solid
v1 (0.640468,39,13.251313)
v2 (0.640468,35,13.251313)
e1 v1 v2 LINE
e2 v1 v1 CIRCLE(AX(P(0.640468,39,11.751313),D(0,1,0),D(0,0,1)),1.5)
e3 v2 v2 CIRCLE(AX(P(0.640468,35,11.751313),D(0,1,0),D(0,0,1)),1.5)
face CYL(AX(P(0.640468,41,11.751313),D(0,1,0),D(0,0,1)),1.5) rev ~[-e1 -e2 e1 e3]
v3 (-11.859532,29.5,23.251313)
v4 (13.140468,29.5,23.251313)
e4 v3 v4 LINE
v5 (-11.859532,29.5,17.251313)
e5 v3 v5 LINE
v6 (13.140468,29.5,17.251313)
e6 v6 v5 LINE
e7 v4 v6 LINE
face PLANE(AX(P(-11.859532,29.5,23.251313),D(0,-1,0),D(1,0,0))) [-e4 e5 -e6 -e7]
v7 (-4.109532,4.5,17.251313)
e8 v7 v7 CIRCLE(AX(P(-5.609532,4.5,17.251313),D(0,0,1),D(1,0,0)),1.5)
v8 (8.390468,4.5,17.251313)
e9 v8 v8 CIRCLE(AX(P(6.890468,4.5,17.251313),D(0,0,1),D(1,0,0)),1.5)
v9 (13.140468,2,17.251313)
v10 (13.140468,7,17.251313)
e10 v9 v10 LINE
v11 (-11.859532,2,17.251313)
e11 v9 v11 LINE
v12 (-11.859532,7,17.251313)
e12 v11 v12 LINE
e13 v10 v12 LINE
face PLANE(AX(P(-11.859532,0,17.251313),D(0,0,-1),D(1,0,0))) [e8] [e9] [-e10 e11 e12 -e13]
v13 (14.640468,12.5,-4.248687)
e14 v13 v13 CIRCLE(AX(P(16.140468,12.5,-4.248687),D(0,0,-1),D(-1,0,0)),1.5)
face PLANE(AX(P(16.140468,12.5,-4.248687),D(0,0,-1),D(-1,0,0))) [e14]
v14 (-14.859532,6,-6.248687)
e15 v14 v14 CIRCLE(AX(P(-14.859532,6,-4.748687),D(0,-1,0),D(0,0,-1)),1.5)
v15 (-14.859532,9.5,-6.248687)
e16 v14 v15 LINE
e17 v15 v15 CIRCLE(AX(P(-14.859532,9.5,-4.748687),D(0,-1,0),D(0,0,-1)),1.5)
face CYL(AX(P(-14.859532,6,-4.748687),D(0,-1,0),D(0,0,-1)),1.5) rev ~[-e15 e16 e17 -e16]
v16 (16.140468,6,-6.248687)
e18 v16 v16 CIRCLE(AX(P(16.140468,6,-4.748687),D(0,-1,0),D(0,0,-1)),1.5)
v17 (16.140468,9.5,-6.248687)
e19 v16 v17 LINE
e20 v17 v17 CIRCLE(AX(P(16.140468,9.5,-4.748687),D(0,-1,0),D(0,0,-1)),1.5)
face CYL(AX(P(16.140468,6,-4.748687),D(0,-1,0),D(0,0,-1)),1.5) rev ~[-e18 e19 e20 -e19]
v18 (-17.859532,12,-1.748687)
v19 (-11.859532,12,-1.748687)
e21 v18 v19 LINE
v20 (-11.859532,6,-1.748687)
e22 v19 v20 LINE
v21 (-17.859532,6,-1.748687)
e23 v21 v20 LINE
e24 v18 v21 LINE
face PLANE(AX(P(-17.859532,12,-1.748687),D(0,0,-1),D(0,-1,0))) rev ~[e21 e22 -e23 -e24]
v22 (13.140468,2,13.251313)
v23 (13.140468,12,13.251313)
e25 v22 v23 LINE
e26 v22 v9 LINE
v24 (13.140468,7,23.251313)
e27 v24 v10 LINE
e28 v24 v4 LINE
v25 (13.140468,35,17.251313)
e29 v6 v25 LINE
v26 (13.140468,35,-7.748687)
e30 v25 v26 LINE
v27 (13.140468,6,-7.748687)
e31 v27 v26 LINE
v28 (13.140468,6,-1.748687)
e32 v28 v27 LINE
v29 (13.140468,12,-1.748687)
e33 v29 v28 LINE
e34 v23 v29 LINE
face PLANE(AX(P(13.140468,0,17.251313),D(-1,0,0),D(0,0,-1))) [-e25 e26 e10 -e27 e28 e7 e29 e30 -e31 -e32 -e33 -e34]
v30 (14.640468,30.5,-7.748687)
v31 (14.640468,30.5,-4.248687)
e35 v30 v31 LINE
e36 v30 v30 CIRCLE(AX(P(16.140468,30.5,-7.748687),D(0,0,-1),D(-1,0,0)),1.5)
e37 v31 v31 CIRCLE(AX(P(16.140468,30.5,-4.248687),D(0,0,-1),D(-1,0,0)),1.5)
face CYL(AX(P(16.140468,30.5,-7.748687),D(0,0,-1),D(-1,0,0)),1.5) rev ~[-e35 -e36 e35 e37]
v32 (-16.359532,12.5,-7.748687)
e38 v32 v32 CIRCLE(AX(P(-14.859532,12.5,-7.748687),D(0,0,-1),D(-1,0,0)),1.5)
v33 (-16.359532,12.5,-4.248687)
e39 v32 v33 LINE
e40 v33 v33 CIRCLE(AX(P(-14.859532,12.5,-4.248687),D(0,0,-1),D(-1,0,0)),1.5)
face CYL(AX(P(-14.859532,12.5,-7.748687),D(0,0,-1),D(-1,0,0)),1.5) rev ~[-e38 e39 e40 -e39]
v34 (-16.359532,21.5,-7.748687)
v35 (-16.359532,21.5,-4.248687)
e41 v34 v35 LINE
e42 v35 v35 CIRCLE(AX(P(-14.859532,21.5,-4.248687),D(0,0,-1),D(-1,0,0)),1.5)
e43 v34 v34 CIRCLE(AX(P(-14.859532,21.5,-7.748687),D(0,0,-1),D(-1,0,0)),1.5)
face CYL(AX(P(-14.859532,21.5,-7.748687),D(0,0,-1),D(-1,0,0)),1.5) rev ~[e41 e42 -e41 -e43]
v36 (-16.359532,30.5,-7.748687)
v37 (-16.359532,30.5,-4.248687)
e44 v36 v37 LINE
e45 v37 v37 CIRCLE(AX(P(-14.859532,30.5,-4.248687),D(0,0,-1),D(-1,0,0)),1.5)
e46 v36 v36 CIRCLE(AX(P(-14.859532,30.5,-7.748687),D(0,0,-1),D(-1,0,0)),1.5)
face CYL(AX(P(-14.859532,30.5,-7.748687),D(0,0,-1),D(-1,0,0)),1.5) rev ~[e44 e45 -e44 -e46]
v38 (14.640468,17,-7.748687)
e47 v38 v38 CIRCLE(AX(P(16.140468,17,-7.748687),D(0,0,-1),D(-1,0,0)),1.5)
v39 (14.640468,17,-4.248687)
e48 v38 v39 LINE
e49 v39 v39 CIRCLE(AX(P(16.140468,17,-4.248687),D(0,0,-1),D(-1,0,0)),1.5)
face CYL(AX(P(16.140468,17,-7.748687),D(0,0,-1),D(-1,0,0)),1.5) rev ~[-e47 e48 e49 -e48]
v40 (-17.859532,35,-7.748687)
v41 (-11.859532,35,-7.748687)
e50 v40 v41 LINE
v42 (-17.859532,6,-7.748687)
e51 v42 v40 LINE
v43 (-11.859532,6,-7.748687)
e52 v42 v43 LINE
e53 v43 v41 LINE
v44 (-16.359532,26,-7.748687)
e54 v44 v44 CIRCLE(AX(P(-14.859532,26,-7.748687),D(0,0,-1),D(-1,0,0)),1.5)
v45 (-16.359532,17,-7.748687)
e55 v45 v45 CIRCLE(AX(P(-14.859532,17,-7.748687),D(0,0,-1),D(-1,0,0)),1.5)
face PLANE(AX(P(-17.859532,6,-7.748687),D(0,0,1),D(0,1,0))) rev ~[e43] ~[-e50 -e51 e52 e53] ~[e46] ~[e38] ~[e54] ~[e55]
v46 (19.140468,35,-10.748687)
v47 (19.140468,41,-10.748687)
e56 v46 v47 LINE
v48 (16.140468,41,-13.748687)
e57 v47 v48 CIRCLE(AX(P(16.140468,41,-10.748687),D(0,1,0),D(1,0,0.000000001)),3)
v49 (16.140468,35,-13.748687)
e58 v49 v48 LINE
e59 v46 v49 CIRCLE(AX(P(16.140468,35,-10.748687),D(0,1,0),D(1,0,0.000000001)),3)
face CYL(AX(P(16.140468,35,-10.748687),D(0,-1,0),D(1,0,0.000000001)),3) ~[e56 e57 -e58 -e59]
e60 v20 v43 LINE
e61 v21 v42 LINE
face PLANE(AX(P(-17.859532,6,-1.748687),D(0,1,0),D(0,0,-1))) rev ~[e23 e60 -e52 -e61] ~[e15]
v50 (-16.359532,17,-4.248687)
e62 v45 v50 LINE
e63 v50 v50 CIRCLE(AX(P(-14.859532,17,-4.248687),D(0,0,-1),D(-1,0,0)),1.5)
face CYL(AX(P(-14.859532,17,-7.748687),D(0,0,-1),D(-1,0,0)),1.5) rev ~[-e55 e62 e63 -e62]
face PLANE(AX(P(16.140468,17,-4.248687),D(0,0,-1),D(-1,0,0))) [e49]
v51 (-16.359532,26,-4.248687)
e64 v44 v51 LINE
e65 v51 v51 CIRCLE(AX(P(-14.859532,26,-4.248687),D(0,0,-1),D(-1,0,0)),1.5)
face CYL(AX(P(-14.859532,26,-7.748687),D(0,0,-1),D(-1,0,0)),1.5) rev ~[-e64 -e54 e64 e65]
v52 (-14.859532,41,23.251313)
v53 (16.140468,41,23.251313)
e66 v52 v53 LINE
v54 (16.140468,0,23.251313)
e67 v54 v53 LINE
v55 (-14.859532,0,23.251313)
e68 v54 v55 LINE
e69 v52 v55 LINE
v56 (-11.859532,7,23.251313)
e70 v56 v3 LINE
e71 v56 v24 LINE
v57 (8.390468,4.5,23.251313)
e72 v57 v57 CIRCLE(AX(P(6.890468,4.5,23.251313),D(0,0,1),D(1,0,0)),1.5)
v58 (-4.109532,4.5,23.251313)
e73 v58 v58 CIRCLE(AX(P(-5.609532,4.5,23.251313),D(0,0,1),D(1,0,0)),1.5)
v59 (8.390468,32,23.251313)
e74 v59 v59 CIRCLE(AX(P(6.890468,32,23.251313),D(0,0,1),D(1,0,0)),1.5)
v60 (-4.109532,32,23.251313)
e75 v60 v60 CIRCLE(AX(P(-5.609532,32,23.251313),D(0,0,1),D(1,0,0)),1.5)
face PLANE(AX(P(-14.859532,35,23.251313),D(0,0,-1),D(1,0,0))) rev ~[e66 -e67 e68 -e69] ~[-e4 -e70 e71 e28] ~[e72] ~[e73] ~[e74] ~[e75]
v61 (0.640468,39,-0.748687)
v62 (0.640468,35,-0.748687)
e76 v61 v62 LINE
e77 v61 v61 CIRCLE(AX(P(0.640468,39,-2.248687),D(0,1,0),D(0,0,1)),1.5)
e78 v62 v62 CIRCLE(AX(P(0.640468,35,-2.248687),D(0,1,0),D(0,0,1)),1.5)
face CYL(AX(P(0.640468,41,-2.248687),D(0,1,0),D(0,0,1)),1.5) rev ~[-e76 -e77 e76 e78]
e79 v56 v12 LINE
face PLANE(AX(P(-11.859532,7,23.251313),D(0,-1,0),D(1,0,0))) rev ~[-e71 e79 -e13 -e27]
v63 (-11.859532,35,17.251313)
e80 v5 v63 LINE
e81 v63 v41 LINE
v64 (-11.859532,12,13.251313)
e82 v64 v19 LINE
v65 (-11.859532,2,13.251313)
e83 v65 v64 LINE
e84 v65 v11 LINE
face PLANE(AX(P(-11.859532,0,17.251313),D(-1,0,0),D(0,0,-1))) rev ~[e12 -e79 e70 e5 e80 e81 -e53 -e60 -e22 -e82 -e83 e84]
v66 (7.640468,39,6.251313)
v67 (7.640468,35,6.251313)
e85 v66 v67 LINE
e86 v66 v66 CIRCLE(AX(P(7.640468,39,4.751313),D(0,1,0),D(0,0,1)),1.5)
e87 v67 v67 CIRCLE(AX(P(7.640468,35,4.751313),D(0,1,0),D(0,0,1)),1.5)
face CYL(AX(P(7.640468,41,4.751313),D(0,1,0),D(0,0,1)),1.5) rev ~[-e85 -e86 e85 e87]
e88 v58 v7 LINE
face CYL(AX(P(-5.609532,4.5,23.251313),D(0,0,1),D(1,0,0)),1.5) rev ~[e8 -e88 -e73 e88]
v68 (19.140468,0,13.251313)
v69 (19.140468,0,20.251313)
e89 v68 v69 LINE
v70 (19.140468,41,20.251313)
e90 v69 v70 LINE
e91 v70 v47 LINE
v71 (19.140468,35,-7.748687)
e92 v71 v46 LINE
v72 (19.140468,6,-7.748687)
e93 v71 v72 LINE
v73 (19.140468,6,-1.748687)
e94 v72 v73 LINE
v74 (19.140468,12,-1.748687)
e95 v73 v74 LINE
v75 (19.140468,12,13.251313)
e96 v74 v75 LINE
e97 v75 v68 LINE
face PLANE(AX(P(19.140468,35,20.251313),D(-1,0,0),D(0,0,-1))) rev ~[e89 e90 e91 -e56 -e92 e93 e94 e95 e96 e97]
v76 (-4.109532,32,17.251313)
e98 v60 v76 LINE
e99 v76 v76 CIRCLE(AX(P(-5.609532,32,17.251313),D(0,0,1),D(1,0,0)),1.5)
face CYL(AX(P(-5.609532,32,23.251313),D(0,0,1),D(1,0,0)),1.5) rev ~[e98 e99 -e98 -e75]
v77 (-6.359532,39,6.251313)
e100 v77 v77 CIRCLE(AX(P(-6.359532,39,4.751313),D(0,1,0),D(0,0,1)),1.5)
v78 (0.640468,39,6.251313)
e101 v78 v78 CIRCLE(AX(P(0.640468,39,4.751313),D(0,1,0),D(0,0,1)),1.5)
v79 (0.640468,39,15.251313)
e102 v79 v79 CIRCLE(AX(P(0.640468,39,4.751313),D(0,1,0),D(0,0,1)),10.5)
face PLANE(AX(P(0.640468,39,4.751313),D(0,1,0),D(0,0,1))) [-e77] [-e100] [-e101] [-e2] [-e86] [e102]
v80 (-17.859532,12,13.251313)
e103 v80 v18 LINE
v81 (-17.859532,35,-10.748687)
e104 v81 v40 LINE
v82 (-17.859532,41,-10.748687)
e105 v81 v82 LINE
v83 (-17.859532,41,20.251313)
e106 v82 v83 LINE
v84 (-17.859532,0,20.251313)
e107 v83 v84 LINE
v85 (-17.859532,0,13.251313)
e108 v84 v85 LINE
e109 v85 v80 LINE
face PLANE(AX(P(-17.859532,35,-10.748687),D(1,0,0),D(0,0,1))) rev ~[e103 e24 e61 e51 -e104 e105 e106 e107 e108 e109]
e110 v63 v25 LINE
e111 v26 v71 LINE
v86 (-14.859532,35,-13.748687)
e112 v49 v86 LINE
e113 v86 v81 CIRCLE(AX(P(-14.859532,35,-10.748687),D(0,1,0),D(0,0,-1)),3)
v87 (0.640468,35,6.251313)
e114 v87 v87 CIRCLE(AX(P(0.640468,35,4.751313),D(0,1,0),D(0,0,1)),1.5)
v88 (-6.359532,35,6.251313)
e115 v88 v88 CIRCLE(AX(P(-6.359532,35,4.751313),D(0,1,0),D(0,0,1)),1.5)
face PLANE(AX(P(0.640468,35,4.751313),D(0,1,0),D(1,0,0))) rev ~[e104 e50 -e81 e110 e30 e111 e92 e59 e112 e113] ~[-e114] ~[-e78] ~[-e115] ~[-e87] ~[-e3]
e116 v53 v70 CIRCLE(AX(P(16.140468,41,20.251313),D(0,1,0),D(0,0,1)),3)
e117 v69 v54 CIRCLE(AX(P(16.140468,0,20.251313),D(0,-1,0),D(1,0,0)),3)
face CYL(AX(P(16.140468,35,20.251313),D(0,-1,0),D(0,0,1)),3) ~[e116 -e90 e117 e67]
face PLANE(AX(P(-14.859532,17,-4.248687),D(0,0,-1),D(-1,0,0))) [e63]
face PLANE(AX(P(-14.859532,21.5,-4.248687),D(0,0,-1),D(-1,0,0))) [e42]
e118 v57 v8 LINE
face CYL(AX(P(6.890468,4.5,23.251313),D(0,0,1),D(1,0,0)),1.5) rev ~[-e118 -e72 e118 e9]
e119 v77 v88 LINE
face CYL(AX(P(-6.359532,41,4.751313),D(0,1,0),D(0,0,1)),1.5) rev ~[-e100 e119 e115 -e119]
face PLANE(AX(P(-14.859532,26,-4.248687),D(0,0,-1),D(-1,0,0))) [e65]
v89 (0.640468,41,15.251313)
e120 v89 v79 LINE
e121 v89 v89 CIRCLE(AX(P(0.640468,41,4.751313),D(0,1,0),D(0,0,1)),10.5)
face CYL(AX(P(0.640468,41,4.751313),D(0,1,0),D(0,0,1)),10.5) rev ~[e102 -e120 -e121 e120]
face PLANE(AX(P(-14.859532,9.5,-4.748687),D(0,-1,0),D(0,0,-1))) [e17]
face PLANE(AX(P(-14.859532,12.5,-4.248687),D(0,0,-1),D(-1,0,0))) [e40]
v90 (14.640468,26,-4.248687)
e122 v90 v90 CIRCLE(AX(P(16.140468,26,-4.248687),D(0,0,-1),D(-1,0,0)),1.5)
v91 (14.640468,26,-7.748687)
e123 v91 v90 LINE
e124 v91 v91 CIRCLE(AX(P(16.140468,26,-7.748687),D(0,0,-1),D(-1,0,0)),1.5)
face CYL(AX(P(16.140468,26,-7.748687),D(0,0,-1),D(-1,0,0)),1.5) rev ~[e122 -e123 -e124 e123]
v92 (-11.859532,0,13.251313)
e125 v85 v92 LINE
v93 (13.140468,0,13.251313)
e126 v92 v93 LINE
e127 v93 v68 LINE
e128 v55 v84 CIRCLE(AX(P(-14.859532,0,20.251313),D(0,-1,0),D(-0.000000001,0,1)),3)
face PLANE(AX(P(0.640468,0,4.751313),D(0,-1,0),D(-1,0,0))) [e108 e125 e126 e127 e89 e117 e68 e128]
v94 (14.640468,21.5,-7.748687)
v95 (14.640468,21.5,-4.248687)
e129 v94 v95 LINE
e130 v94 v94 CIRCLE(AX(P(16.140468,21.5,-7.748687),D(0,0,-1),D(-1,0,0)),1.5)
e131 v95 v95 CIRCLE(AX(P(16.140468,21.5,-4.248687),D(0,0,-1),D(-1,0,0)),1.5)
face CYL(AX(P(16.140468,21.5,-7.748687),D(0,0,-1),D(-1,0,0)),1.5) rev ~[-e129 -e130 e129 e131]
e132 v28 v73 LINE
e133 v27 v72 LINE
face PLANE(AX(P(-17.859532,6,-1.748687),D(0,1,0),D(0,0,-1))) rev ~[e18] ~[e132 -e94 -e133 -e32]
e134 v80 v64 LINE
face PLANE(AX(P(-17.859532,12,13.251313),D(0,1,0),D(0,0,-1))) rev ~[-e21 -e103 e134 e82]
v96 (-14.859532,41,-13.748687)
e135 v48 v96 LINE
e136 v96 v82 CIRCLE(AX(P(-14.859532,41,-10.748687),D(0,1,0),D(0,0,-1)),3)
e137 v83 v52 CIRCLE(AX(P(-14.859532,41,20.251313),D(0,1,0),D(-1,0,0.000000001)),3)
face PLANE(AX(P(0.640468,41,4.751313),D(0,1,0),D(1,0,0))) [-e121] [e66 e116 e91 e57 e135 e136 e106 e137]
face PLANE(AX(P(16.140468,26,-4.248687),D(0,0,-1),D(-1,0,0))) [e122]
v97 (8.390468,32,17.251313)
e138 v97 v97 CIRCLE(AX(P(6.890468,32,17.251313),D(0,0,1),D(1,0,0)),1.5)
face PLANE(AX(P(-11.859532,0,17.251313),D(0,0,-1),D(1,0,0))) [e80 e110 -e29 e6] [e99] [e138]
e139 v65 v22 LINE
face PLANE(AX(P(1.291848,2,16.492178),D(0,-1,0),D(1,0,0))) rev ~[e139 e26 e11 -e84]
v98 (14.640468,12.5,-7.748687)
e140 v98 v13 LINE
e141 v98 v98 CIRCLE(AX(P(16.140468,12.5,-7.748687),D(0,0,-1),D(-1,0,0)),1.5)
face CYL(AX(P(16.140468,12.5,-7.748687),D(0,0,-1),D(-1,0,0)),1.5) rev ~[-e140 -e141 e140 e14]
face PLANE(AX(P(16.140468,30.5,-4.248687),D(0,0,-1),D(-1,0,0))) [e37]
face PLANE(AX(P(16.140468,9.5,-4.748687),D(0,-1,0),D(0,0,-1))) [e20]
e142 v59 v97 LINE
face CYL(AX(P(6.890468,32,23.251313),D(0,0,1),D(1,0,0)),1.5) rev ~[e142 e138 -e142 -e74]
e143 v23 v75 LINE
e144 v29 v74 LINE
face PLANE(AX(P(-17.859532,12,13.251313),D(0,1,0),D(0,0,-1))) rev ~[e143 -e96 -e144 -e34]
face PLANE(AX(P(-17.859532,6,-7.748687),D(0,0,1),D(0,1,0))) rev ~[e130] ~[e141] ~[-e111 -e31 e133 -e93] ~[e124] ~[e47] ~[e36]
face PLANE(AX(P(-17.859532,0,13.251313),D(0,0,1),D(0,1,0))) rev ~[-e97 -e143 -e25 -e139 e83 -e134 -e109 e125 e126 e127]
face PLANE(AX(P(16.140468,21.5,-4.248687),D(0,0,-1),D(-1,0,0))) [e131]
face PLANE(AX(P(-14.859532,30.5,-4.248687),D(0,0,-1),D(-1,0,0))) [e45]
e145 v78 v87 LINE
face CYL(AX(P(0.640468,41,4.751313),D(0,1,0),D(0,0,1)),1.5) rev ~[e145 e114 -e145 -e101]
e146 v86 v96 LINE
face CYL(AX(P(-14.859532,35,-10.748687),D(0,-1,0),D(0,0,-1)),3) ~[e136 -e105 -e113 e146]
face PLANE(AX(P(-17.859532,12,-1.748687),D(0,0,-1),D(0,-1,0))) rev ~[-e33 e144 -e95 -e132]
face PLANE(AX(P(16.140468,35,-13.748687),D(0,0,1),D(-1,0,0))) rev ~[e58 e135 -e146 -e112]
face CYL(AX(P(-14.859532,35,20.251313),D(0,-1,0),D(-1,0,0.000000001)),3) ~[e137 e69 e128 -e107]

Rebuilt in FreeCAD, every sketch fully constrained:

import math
import FreeCAD as App
import Part
import Sketcher

doc = App.newDocument("Part")
body = doc.addObject("PartDesign::Body", "Body")

# Sketch on XZ plane
sketch1 = doc.addObject("Sketcher::SketchObject", "Sketch")
body.addObject(sketch1)
sketch1.AttachmentSupport = (doc.XZ_Plane, [""])
sketch1.MapMode = "FlatFace"
sketch1.addGeometry(Part.LineSegment(App.Vector(16.1, -13.7, 0), App.Vector(-14.9, -13.7, 0)), False)
sketch1.addGeometry(Part.ArcOfCircle(Part.Circle(App.Vector(-14.9, -10.7, 0), App.Vector(0, 0, 1), 3), math.radians(180), math.radians(270)), False)
sketch1.addGeometry(Part.LineSegment(App.Vector(-17.9, -10.7, 0), App.Vector(-17.9, 20.3, 0)), False)
sketch1.addGeometry(Part.ArcOfCircle(Part.Circle(App.Vector(-14.9, 20.3, 0), App.Vector(0, 0, 1), 3), math.radians(90), math.radians(180)), False)
sketch1.addGeometry(Part.LineSegment(App.Vector(-14.9, 23.3, 0), App.Vector(16.1, 23.3, 0)), False)
sketch1.addGeometry(Part.ArcOfCircle(Part.Circle(App.Vector(16.1, 20.3, 0), App.Vector(0, 0, 1), 3), math.radians(0), math.radians(90)), False)
sketch1.addGeometry(Part.LineSegment(App.Vector(19.1, 20.3, 0), App.Vector(19.1, -10.7, 0)), False)
sketch1.addGeometry(Part.ArcOfCircle(Part.Circle(App.Vector(16.1, -10.7, 0), App.Vector(0, 0, 1), 3), math.radians(-90), math.radians(0)), False)
sketch1.addGeometry(Part.LineSegment(App.Vector(-11.9, 17.3, 0), App.Vector(-11.9, -7.7, 0)), False)
sketch1.addGeometry(Part.LineSegment(App.Vector(-11.9, -7.7, 0), App.Vector(13.1, -7.7, 0)), False)
sketch1.addGeometry(Part.LineSegment(App.Vector(13.1, -7.7, 0), App.Vector(13.1, 17.3, 0)), False)
sketch1.addGeometry(Part.LineSegment(App.Vector(13.1, 17.3, 0), App.Vector(-11.9, 17.3, 0)), False)
sketch1.addConstraint(Sketcher.Constraint("Tangent", 0, 2, 1, 2))
sketch1.addConstraint(Sketcher.Constraint("Tangent", 1, 1, 2, 1))
sketch1.addConstraint(Sketcher.Constraint("Tangent", 2, 2, 3, 2))
sketch1.addConstraint(Sketcher.Constraint("Tangent", 3, 1, 4, 1))
sketch1.addConstraint(Sketcher.Constraint("Tangent", 4, 2, 5, 2))
sketch1.addConstraint(Sketcher.Constraint("Tangent", 5, 1, 6, 1))
sketch1.addConstraint(Sketcher.Constraint("Tangent", 6, 2, 7, 2))
sketch1.addConstraint(Sketcher.Constraint("Tangent", 7, 1, 0, 1))
sketch1.addConstraint(Sketcher.Constraint("Coincident", 8, 2, 9, 1))
sketch1.addConstraint(Sketcher.Constraint("Coincident", 9, 2, 10, 1))
sketch1.addConstraint(Sketcher.Constraint("Coincident", 10, 2, 11, 1))
sketch1.addConstraint(Sketcher.Constraint("Coincident", 11, 2, 8, 1))
sketch1.addConstraint(Sketcher.Constraint("Horizontal", 0))
sketch1.addConstraint(Sketcher.Constraint("Vertical", 2))
sketch1.addConstraint(Sketcher.Constraint("Horizontal", 4))
sketch1.addConstraint(Sketcher.Constraint("Vertical", 6))
sketch1.addConstraint(Sketcher.Constraint("Vertical", 8))
sketch1.addConstraint(Sketcher.Constraint("Horizontal", 9))
sketch1.addConstraint(Sketcher.Constraint("Vertical", 10))
sketch1.addConstraint(Sketcher.Constraint("Horizontal", 11))
sketch1.addConstraint(Sketcher.Constraint("Equal", 1, 3))
sketch1.addConstraint(Sketcher.Constraint("Equal", 3, 5))
sketch1.addConstraint(Sketcher.Constraint("Equal", 5, 7))
sketch1.addConstraint(Sketcher.Constraint("Equal", 4, 2))
sketch1.addConstraint(Sketcher.Constraint("Equal", 11, 8))
sketch1.addConstraint(Sketcher.Constraint("Radius", 1, 3.0))
sketch1.addConstraint(Sketcher.Constraint("DistanceX", 0, 2, 0, 1, 31.0))
sketch1.addConstraint(Sketcher.Constraint("DistanceX", 9, 1, 9, 2, 25.0))
sketch1.addConstraint(Sketcher.Constraint("DistanceX", 1, 3, 8, 2, 3.0))
sketch1.addConstraint(Sketcher.Constraint("DistanceY", 1, 3, 8, 2, 3.0))
sketch1.addConstraint(Sketcher.Constraint("DistanceX", 1, 3, -1, 1, 14.859532))
sketch1.addConstraint(Sketcher.Constraint("DistanceY", 1, 3, -1, 1, 10.748687))
pad1 = doc.addObject("PartDesign::Pad", "Pad")
body.addObject(pad1)
pad1.Profile = sketch1
pad1.Length = 35
pad1.Reversed = True

# Sketch on YZ plane
sketch2 = doc.addObject("Sketcher::SketchObject", "Sketch001")
body.addObject(sketch2)
sketch2.AttachmentSupport = (doc.YZ_Plane, [""])
sketch2.MapMode = "FlatFace"
sketch2.AttachmentOffset = App.Placement(App.Vector(0, 0, -17.859532), App.Rotation())
sketch2.addGeometry(Part.LineSegment(App.Vector(35, -14, 0), App.Vector(0, -14, 0)), False)
sketch2.addGeometry(Part.LineSegment(App.Vector(0, -14, 0), App.Vector(0, 13, 0)), False)
sketch2.addGeometry(Part.LineSegment(App.Vector(0, 13, 0), App.Vector(12, 13, 0)), False)
sketch2.addGeometry(Part.LineSegment(App.Vector(12, 13, 0), App.Vector(12, -2, 0)), False)
sketch2.addGeometry(Part.LineSegment(App.Vector(12, -2, 0), App.Vector(6, -2, 0)), False)
sketch2.addGeometry(Part.LineSegment(App.Vector(6, -2, 0), App.Vector(6, -8, 0)), False)
sketch2.addGeometry(Part.LineSegment(App.Vector(6, -8, 0), App.Vector(35, -8, 0)), False)
sketch2.addGeometry(Part.LineSegment(App.Vector(35, -8, 0), App.Vector(35, -14, 0)), False)
sketch2.addConstraint(Sketcher.Constraint("Coincident", 0, 2, 1, 1))
sketch2.addConstraint(Sketcher.Constraint("Coincident", 1, 2, 2, 1))
sketch2.addConstraint(Sketcher.Constraint("Coincident", 2, 2, 3, 1))
sketch2.addConstraint(Sketcher.Constraint("Coincident", 3, 2, 4, 1))
sketch2.addConstraint(Sketcher.Constraint("Coincident", 4, 2, 5, 1))
sketch2.addConstraint(Sketcher.Constraint("Coincident", 5, 2, 6, 1))
sketch2.addConstraint(Sketcher.Constraint("Coincident", 6, 2, 7, 1))
sketch2.addConstraint(Sketcher.Constraint("Coincident", 7, 2, 0, 1))
sketch2.addConstraint(Sketcher.Constraint("Horizontal", 0))
sketch2.addConstraint(Sketcher.Constraint("Vertical", 1))
sketch2.addConstraint(Sketcher.Constraint("Horizontal", 2))
sketch2.addConstraint(Sketcher.Constraint("Vertical", 3))
sketch2.addConstraint(Sketcher.Constraint("Horizontal", 4))
sketch2.addConstraint(Sketcher.Constraint("Vertical", 5))
sketch2.addConstraint(Sketcher.Constraint("Horizontal", 6))
sketch2.addConstraint(Sketcher.Constraint("Vertical", 7))
sketch2.addConstraint(Sketcher.Constraint("PointOnObject", 0, 2, -2))
sketch2.addConstraint(Sketcher.Constraint("Equal", 4, 5))
sketch2.addConstraint(Sketcher.Constraint("Equal", 5, 7))
sketch2.addConstraint(Sketcher.Constraint("DistanceX", 0, 2, 0, 1, 35.0))
sketch2.addConstraint(Sketcher.Constraint("DistanceX", 2, 1, 2, 2, 12.0))
sketch2.addConstraint(Sketcher.Constraint("DistanceX", 4, 2, 4, 1, 6.0))
sketch2.addConstraint(Sketcher.Constraint("DistanceY", 1, 1, 1, 2, 27.0))
sketch2.addConstraint(Sketcher.Constraint("DistanceY", 0, 2, -1, 1, 13.748687))
pocket1 = doc.addObject("PartDesign::Pocket", "Pocket")
body.addObject(pocket1)
pocket1.Profile = sketch2
pocket1.Length = 50
pocket1.Reversed = True

# Sketch on XY plane
sketch3 = doc.addObject("Sketcher::SketchObject", "Sketch002")
body.addObject(sketch3)
sketch3.AttachmentSupport = (doc.XY_Plane, [""])
sketch3.MapMode = "FlatFace"
sketch3.AttachmentOffset = App.Placement(App.Vector(0, 0, 23.251313), App.Rotation())
sketch3.addGeometry(Part.LineSegment(App.Vector(-12, 30, 0), App.Vector(-12, 7, 0)), False)
sketch3.addGeometry(Part.LineSegment(App.Vector(-12, 7, 0), App.Vector(13, 7, 0)), False)
sketch3.addGeometry(Part.LineSegment(App.Vector(13, 7, 0), App.Vector(13, 30, 0)), False)
sketch3.addGeometry(Part.LineSegment(App.Vector(13, 30, 0), App.Vector(-12, 30, 0)), False)
sketch3.addConstraint(Sketcher.Constraint("Coincident", 0, 2, 1, 1))
sketch3.addConstraint(Sketcher.Constraint("Coincident", 1, 2, 2, 1))
sketch3.addConstraint(Sketcher.Constraint("Coincident", 2, 2, 3, 1))
sketch3.addConstraint(Sketcher.Constraint("Coincident", 3, 2, 0, 1))
sketch3.addConstraint(Sketcher.Constraint("Vertical", 0))
sketch3.addConstraint(Sketcher.Constraint("Horizontal", 1))
sketch3.addConstraint(Sketcher.Constraint("Vertical", 2))
sketch3.addConstraint(Sketcher.Constraint("Horizontal", 3))
sketch3.addConstraint(Sketcher.Constraint("DistanceX", 1, 1, 1, 2, 25.0))
sketch3.addConstraint(Sketcher.Constraint("DistanceY", 0, 2, 0, 1, 22.5))
sketch3.addConstraint(Sketcher.Constraint("DistanceY", -1, 1, 0, 2, 7.0))
sketch3.addConstraint(Sketcher.Constraint("DistanceX", 0, 2, -1, 1, 11.859532))
pocket2 = doc.addObject("PartDesign::Pocket", "Pocket001")
body.addObject(pocket2)
pocket2.Profile = sketch3
pocket2.Length = 7

# Sketch on XZ plane
sketch4 = doc.addObject("Sketcher::SketchObject", "Sketch003")
body.addObject(sketch4)
sketch4.AttachmentSupport = (doc.XZ_Plane, [""])
sketch4.MapMode = "FlatFace"
sketch4.addGeometry(Part.LineSegment(App.Vector(-14, 20, 0), App.Vector(-14, 13, 0)), False)
sketch4.addGeometry(Part.LineSegment(App.Vector(-14, 13, 0), App.Vector(17, 13, 0)), False)
sketch4.addGeometry(Part.LineSegment(App.Vector(17, 13, 0), App.Vector(17, 20, 0)), False)
sketch4.addGeometry(Part.LineSegment(App.Vector(17, 20, 0), App.Vector(-14, 20, 0)), False)
sketch4.addConstraint(Sketcher.Constraint("Coincident", 0, 2, 1, 1))
sketch4.addConstraint(Sketcher.Constraint("Coincident", 1, 2, 2, 1))
sketch4.addConstraint(Sketcher.Constraint("Coincident", 2, 2, 3, 1))
sketch4.addConstraint(Sketcher.Constraint("Coincident", 3, 2, 0, 1))
sketch4.addConstraint(Sketcher.Constraint("Vertical", 0))
sketch4.addConstraint(Sketcher.Constraint("Horizontal", 1))
sketch4.addConstraint(Sketcher.Constraint("Vertical", 2))
sketch4.addConstraint(Sketcher.Constraint("Horizontal", 3))
sketch4.addConstraint(Sketcher.Constraint("DistanceY", 0, 2, 0, 1, 6.481731))
sketch4.addConstraint(Sketcher.Constraint("DistanceX", 1, 1, 1, 2, 30.861916))
sketch4.addConstraint(Sketcher.Constraint("DistanceX", 0, 2, -1, 1, 14.13911))
sketch4.addConstraint(Sketcher.Constraint("DistanceY", -1, 1, 0, 2, 13.251313))
pad2 = doc.addObject("PartDesign::Pad", "Pad001")
body.addObject(pad2)
pad2.Profile = sketch4
pad2.Length = 2
pad2.Reversed = True

# Sketch on XY plane
sketch5 = doc.addObject("Sketcher::SketchObject", "Sketch004")
body.addObject(sketch5)
sketch5.AttachmentSupport = (doc.XY_Plane, [""])
sketch5.MapMode = "FlatFace"
sketch5.AttachmentOffset = App.Placement(App.Vector(0, 0, -7.748687), App.Rotation())
sketch5.addGeometry(Part.Circle(App.Vector(16.1, 21.5, 0), App.Vector(0, 0, 1), 1.5), False)
sketch5.addGeometry(Part.Circle(App.Vector(16.1, 17, 0), App.Vector(0, 0, 1), 1.5), False)
sketch5.addGeometry(Part.Circle(App.Vector(16.1, 12.5, 0), App.Vector(0, 0, 1), 1.5), False)
sketch5.addGeometry(Part.Circle(App.Vector(-14.9, 12.5, 0), App.Vector(0, 0, 1), 1.5), False)
sketch5.addGeometry(Part.Circle(App.Vector(-14.9, 21.5, 0), App.Vector(0, 0, 1), 1.5), False)
sketch5.addGeometry(Part.Circle(App.Vector(-14.9, 17, 0), App.Vector(0, 0, 1), 1.5), False)
sketch5.addGeometry(Part.Circle(App.Vector(-14.9, 30.5, 0), App.Vector(0, 0, 1), 1.5), False)
sketch5.addGeometry(Part.Circle(App.Vector(16.1, 30.5, 0), App.Vector(0, 0, 1), 1.5), False)
sketch5.addGeometry(Part.Circle(App.Vector(16.1, 26, 0), App.Vector(0, 0, 1), 1.5), False)
sketch5.addGeometry(Part.Circle(App.Vector(-14.9, 26, 0), App.Vector(0, 0, 1), 1.5), False)
sketch5.addConstraint(Sketcher.Constraint("Equal", 0, 1))
sketch5.addConstraint(Sketcher.Constraint("Equal", 1, 2))
sketch5.addConstraint(Sketcher.Constraint("Equal", 2, 3))
sketch5.addConstraint(Sketcher.Constraint("Equal", 3, 4))
sketch5.addConstraint(Sketcher.Constraint("Equal", 4, 5))
sketch5.addConstraint(Sketcher.Constraint("Equal", 5, 6))
sketch5.addConstraint(Sketcher.Constraint("Equal", 6, 7))
sketch5.addConstraint(Sketcher.Constraint("Equal", 7, 8))
sketch5.addConstraint(Sketcher.Constraint("Equal", 8, 9))
sketch5.addConstraint(Sketcher.Constraint("Horizontal", 2, 3, 3, 3))
sketch5.addConstraint(Sketcher.Constraint("Horizontal", 0, 3, 4, 3))
sketch5.addConstraint(Sketcher.Constraint("Horizontal", 1, 3, 5, 3))
sketch5.addConstraint(Sketcher.Constraint("Horizontal", 6, 3, 7, 3))
sketch5.addConstraint(Sketcher.Constraint("Horizontal", 8, 3, 9, 3))
sketch5.addConstraint(Sketcher.Constraint("Vertical", 0, 3, 1, 3))
sketch5.addConstraint(Sketcher.Constraint("Vertical", 1, 3, 2, 3))
sketch5.addConstraint(Sketcher.Constraint("Vertical", 3, 3, 4, 3))
sketch5.addConstraint(Sketcher.Constraint("Vertical", 4, 3, 5, 3))
sketch5.addConstraint(Sketcher.Constraint("Vertical", 5, 3, 6, 3))
sketch5.addConstraint(Sketcher.Constraint("Vertical", 2, 3, 7, 3))
sketch5.addConstraint(Sketcher.Constraint("Vertical", 7, 3, 8, 3))
sketch5.addConstraint(Sketcher.Constraint("Vertical", 6, 3, 9, 3))
sketch5.addConstraint(Sketcher.Constraint("Diameter", 0, 3.0))
sketch5.addConstraint(Sketcher.Constraint("DistanceY", -1, 1, 1, 3, 17.0))
sketch5.addConstraint(Sketcher.Constraint("DistanceY", -1, 1, 8, 3, 26.0))
sketch5.addConstraint(Sketcher.Constraint("DistanceY", 2, 3, 0, 3, 9.0))
sketch5.addConstraint(Sketcher.Constraint("DistanceX", 3, 3, 2, 3, 31.0))
sketch5.addConstraint(Sketcher.Constraint("DistanceY", 4, 3, 6, 3, 9.0))
sketch5.addConstraint(Sketcher.Constraint("DistanceY", -1, 1, 0, 3, 21.5))
sketch5.addConstraint(Sketcher.Constraint("DistanceX", -1, 1, 0, 3, 16.140468))
pocket3 = doc.addObject("PartDesign::Pocket", "Pocket002")
body.addObject(pocket3)
pocket3.Profile = sketch5
pocket3.Length = 3.5
pocket3.Reversed = True

# Sketch on XZ plane
sketch6 = doc.addObject("Sketcher::SketchObject", "Sketch005")
body.addObject(sketch6)
sketch6.AttachmentSupport = (doc.XZ_Plane, [""])
sketch6.MapMode = "FlatFace"
sketch6.AttachmentOffset = App.Placement(App.Vector(0, 0, -6), App.Rotation())
sketch6.addGeometry(Part.Circle(App.Vector(-14.9, -4.7, 0), App.Vector(0, 0, 1), 1.5), False)
sketch6.addGeometry(Part.Circle(App.Vector(16.1, -4.7, 0), App.Vector(0, 0, 1), 1.5), False)
sketch6.addConstraint(Sketcher.Constraint("Equal", 0, 1))
sketch6.addConstraint(Sketcher.Constraint("Horizontal", 0, 3, 1, 3))
sketch6.addConstraint(Sketcher.Constraint("Diameter", 0, 3.0))
sketch6.addConstraint(Sketcher.Constraint("DistanceX", 0, 3, 1, 3, 31.0))
sketch6.addConstraint(Sketcher.Constraint("DistanceX", 0, 3, -1, 1, 14.859532))
sketch6.addConstraint(Sketcher.Constraint("DistanceY", 0, 3, -1, 1, 4.748687))
pocket4 = doc.addObject("PartDesign::Pocket", "Pocket003")
body.addObject(pocket4)
pocket4.Profile = sketch6
pocket4.Length = 3.5

# Sketch on XZ plane
sketch7 = doc.addObject("Sketcher::SketchObject", "Sketch006")
body.addObject(sketch7)
sketch7.AttachmentSupport = (doc.XZ_Plane, [""])
sketch7.MapMode = "FlatFace"
sketch7.AttachmentOffset = App.Placement(App.Vector(0, 0, -35), App.Rotation())
sketch7.addGeometry(Part.LineSegment(App.Vector(-14.9, 23.3, 0), App.Vector(16.1, 23.3, 0)), False)
sketch7.addGeometry(Part.ArcOfCircle(Part.Circle(App.Vector(16.1, 20.3, 0), App.Vector(0, 0, 1), 3), math.radians(0), math.radians(90)), False)
sketch7.addGeometry(Part.LineSegment(App.Vector(19.1, 20.3, 0), App.Vector(19.1, -10.7, 0)), False)
sketch7.addGeometry(Part.ArcOfCircle(Part.Circle(App.Vector(16.1, -10.7, 0), App.Vector(0, 0, 1), 3), math.radians(-90), math.radians(0)), False)
sketch7.addGeometry(Part.LineSegment(App.Vector(16.1, -13.7, 0), App.Vector(-14.9, -13.7, 0)), False)
sketch7.addGeometry(Part.ArcOfCircle(Part.Circle(App.Vector(-14.9, -10.7, 0), App.Vector(0, 0, 1), 3), math.radians(180), math.radians(270)), False)
sketch7.addGeometry(Part.LineSegment(App.Vector(-17.9, -10.7, 0), App.Vector(-17.9, 20.3, 0)), False)
sketch7.addGeometry(Part.ArcOfCircle(Part.Circle(App.Vector(-14.9, 20.3, 0), App.Vector(0, 0, 1), 3), math.radians(90), math.radians(180)), False)
sketch7.addConstraint(Sketcher.Constraint("Tangent", 0, 2, 1, 2))
sketch7.addConstraint(Sketcher.Constraint("Tangent", 1, 1, 2, 1))
sketch7.addConstraint(Sketcher.Constraint("Tangent", 2, 2, 3, 2))
sketch7.addConstraint(Sketcher.Constraint("Tangent", 3, 1, 4, 1))
sketch7.addConstraint(Sketcher.Constraint("Tangent", 4, 2, 5, 2))
sketch7.addConstraint(Sketcher.Constraint("Tangent", 5, 1, 6, 1))
sketch7.addConstraint(Sketcher.Constraint("Tangent", 6, 2, 7, 2))
sketch7.addConstraint(Sketcher.Constraint("Tangent", 7, 1, 0, 1))
sketch7.addConstraint(Sketcher.Constraint("Horizontal", 0))
sketch7.addConstraint(Sketcher.Constraint("Vertical", 2))
sketch7.addConstraint(Sketcher.Constraint("Horizontal", 4))
sketch7.addConstraint(Sketcher.Constraint("Vertical", 6))
sketch7.addConstraint(Sketcher.Constraint("Equal", 1, 3))
sketch7.addConstraint(Sketcher.Constraint("Equal", 3, 5))
sketch7.addConstraint(Sketcher.Constraint("Equal", 5, 7))
sketch7.addConstraint(Sketcher.Constraint("Equal", 4, 2))
sketch7.addConstraint(Sketcher.Constraint("Radius", 1, 3.0))
sketch7.addConstraint(Sketcher.Constraint("DistanceX", 0, 1, 0, 2, 31.0))
sketch7.addConstraint(Sketcher.Constraint("DistanceX", -1, 1, 1, 3, 16.140468))
sketch7.addConstraint(Sketcher.Constraint("DistanceY", -1, 1, 1, 3, 20.251313))
pad3 = doc.addObject("PartDesign::Pad", "Pad002")
body.addObject(pad3)
pad3.Profile = sketch7
pad3.Length = 6
pad3.Reversed = True

# Sketch on XY plane
sketch8 = doc.addObject("Sketcher::SketchObject", "Sketch007")
body.addObject(sketch8)
sketch8.AttachmentSupport = (doc.XY_Plane, [""])
sketch8.MapMode = "FlatFace"
sketch8.AttachmentOffset = App.Placement(App.Vector(0, 0, 23.251313), App.Rotation())
sketch8.addGeometry(Part.Circle(App.Vector(-5.6, 32, 0), App.Vector(0, 0, 1), 1.5), False)
sketch8.addGeometry(Part.Circle(App.Vector(6.9, 32, 0), App.Vector(0, 0, 1), 1.5), False)
sketch8.addGeometry(Part.Circle(App.Vector(-5.6, 4.5, 0), App.Vector(0, 0, 1), 1.5), False)
sketch8.addGeometry(Part.Circle(App.Vector(6.9, 4.5, 0), App.Vector(0, 0, 1), 1.5), False)
sketch8.addConstraint(Sketcher.Constraint("Equal", 0, 1))
sketch8.addConstraint(Sketcher.Constraint("Equal", 1, 2))
sketch8.addConstraint(Sketcher.Constraint("Equal", 2, 3))
sketch8.addConstraint(Sketcher.Constraint("Horizontal", 0, 3, 1, 3))
sketch8.addConstraint(Sketcher.Constraint("Horizontal", 2, 3, 3, 3))
sketch8.addConstraint(Sketcher.Constraint("Vertical", 0, 3, 2, 3))
sketch8.addConstraint(Sketcher.Constraint("Vertical", 1, 3, 3, 3))
sketch8.addConstraint(Sketcher.Constraint("Diameter", 0, 3.0))
sketch8.addConstraint(Sketcher.Constraint("DistanceY", -1, 1, 0, 3, 32.0))
sketch8.addConstraint(Sketcher.Constraint("DistanceY", -1, 1, 2, 3, 4.5))
sketch8.addConstraint(Sketcher.Constraint("DistanceX", 0, 3, 1, 3, 12.5))
sketch8.addConstraint(Sketcher.Constraint("DistanceX", 0, 3, -1, 1, 5.609532))
pocket5 = doc.addObject("PartDesign::Pocket", "Pocket004")
body.addObject(pocket5)
pocket5.Profile = sketch8
pocket5.Length = 10

# Sketch on XZ plane
sketch9 = doc.addObject("Sketcher::SketchObject", "Sketch008")
body.addObject(sketch9)
sketch9.AttachmentSupport = (doc.XZ_Plane, [""])
sketch9.MapMode = "FlatFace"
sketch9.AttachmentOffset = App.Placement(App.Vector(0, 0, -41), App.Rotation())
sketch9.addGeometry(Part.Circle(App.Vector(0.6, -2.2, 0), App.Vector(0, 0, 1), 1.5), False)
sketch9.addGeometry(Part.Circle(App.Vector(7.6, 4.8, 0), App.Vector(0, 0, 1), 1.5), False)
sketch9.addGeometry(Part.Circle(App.Vector(0.6, 11.8, 0), App.Vector(0, 0, 1), 1.5), False)
sketch9.addGeometry(Part.Circle(App.Vector(-6.4, 4.8, 0), App.Vector(0, 0, 1), 1.5), False)
sketch9.addGeometry(Part.Circle(App.Vector(0.6, 4.8, 0), App.Vector(0, 0, 1), 1.5), False)
sketch9.addConstraint(Sketcher.Constraint("Equal", 0, 1))
sketch9.addConstraint(Sketcher.Constraint("Equal", 1, 2))
sketch9.addConstraint(Sketcher.Constraint("Equal", 2, 3))
sketch9.addConstraint(Sketcher.Constraint("Equal", 3, 4))
sketch9.addConstraint(Sketcher.Constraint("Horizontal", 1, 3, 3, 3))
sketch9.addConstraint(Sketcher.Constraint("Horizontal", 3, 3, 4, 3))
sketch9.addConstraint(Sketcher.Constraint("Vertical", 0, 3, 2, 3))
sketch9.addConstraint(Sketcher.Constraint("Vertical", 2, 3, 4, 3))
sketch9.addConstraint(Sketcher.Constraint("Diameter", 0, 3.0))
sketch9.addConstraint(Sketcher.Constraint("DistanceX", 0, 3, 1, 3, 7.0))
sketch9.addConstraint(Sketcher.Constraint("DistanceY", 0, 3, 1, 3, 7.0))
sketch9.addConstraint(Sketcher.Constraint("DistanceY", 1, 3, 2, 3, 7.0))
sketch9.addConstraint(Sketcher.Constraint("DistanceX", 3, 3, 0, 3, 7.0))
sketch9.addConstraint(Sketcher.Constraint("DistanceX", -1, 1, 0, 3, 0.640468))
sketch9.addConstraint(Sketcher.Constraint("DistanceY", 0, 3, -1, 1, 2.248687))
pocket6 = doc.addObject("PartDesign::Pocket", "Pocket005")
body.addObject(pocket6)
pocket6.Profile = sketch9
pocket6.Length = 10
pocket6.Reversed = True

# Sketch on XZ plane
sketch10 = doc.addObject("Sketcher::SketchObject", "Sketch009")
body.addObject(sketch10)
sketch10.AttachmentSupport = (doc.XZ_Plane, [""])
sketch10.MapMode = "FlatFace"
sketch10.AttachmentOffset = App.Placement(App.Vector(0, 0, -41), App.Rotation())
sketch10.addGeometry(Part.Circle(App.Vector(1, 5, 0), App.Vector(0, 0, 1), 10), False)
sketch10.addConstraint(Sketcher.Constraint("Diameter", 0, 21.0))
sketch10.addConstraint(Sketcher.Constraint("DistanceX", -1, 1, 0, 3, 0.640468))
sketch10.addConstraint(Sketcher.Constraint("DistanceY", -1, 1, 0, 3, 4.751313))
pocket7 = doc.addObject("PartDesign::Pocket", "Pocket006")
body.addObject(pocket7)
pocket7.Profile = sketch10
pocket7.Length = 2
pocket7.Reversed = True

doc.recompute()
